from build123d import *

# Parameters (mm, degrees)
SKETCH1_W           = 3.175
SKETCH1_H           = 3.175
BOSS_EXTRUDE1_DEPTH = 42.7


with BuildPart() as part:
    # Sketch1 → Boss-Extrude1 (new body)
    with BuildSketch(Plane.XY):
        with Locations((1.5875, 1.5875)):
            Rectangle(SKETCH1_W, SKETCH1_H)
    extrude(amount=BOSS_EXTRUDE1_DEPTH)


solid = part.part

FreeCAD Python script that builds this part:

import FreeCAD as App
import Part
import Sketcher
from FreeCAD import Vector

doc = App.newDocument("Part")
body = doc.addObject("PartDesign::Body", "Body")

# Sketch on XY plane
sketch1 = body.newObject("Sketcher::SketchObject", "Sketch")
sketch1.AttachmentSupport = (doc.getObject("XY_Plane"), [""])
sketch1.MapMode = "FlatFace"
sketch1.addGeometry(Part.LineSegment(Vector(0, 3.2, 0), Vector(0, 0, 0)), False)
sketch1.addGeometry(Part.LineSegment(Vector(0, 0, 0), Vector(3.2, 0, 0)), False)
sketch1.addGeometry(Part.LineSegment(Vector(3.2, 0, 0), Vector(3.2, 3.2, 0)), False)
sketch1.addGeometry(Part.LineSegment(Vector(3.2, 3.2, 0), Vector(0, 3.2, 0)), False)
sketch1.addConstraint(Sketcher.Constraint("Coincident", 0, 2, 1, 1))
sketch1.addConstraint(Sketcher.Constraint("Coincident", 1, 2, 2, 1))
sketch1.addConstraint(Sketcher.Constraint("Coincident", 2, 2, 3, 1))
sketch1.addConstraint(Sketcher.Constraint("Coincident", 3, 2, 0, 1))
sketch1.addConstraint(Sketcher.Constraint("Vertical", 0))
sketch1.addConstraint(Sketcher.Constraint("Horizontal", 1))
sketch1.addConstraint(Sketcher.Constraint("Vertical", 2))
sketch1.addConstraint(Sketcher.Constraint("Horizontal", 3))
sketch1.addConstraint(Sketcher.Constraint("Coincident", 0, 2, -1, 1))
sketch1.addConstraint(Sketcher.Constraint("Equal", 3, 0))
sketch1.addConstraint(Sketcher.Constraint("DistanceX", 1, 1, 1, 2, 3.175))
pad1 = body.newObject("PartDesign::Pad", "Pad")
pad1.Profile = sketch1
pad1.Length = 42.7

doc.recompute()
